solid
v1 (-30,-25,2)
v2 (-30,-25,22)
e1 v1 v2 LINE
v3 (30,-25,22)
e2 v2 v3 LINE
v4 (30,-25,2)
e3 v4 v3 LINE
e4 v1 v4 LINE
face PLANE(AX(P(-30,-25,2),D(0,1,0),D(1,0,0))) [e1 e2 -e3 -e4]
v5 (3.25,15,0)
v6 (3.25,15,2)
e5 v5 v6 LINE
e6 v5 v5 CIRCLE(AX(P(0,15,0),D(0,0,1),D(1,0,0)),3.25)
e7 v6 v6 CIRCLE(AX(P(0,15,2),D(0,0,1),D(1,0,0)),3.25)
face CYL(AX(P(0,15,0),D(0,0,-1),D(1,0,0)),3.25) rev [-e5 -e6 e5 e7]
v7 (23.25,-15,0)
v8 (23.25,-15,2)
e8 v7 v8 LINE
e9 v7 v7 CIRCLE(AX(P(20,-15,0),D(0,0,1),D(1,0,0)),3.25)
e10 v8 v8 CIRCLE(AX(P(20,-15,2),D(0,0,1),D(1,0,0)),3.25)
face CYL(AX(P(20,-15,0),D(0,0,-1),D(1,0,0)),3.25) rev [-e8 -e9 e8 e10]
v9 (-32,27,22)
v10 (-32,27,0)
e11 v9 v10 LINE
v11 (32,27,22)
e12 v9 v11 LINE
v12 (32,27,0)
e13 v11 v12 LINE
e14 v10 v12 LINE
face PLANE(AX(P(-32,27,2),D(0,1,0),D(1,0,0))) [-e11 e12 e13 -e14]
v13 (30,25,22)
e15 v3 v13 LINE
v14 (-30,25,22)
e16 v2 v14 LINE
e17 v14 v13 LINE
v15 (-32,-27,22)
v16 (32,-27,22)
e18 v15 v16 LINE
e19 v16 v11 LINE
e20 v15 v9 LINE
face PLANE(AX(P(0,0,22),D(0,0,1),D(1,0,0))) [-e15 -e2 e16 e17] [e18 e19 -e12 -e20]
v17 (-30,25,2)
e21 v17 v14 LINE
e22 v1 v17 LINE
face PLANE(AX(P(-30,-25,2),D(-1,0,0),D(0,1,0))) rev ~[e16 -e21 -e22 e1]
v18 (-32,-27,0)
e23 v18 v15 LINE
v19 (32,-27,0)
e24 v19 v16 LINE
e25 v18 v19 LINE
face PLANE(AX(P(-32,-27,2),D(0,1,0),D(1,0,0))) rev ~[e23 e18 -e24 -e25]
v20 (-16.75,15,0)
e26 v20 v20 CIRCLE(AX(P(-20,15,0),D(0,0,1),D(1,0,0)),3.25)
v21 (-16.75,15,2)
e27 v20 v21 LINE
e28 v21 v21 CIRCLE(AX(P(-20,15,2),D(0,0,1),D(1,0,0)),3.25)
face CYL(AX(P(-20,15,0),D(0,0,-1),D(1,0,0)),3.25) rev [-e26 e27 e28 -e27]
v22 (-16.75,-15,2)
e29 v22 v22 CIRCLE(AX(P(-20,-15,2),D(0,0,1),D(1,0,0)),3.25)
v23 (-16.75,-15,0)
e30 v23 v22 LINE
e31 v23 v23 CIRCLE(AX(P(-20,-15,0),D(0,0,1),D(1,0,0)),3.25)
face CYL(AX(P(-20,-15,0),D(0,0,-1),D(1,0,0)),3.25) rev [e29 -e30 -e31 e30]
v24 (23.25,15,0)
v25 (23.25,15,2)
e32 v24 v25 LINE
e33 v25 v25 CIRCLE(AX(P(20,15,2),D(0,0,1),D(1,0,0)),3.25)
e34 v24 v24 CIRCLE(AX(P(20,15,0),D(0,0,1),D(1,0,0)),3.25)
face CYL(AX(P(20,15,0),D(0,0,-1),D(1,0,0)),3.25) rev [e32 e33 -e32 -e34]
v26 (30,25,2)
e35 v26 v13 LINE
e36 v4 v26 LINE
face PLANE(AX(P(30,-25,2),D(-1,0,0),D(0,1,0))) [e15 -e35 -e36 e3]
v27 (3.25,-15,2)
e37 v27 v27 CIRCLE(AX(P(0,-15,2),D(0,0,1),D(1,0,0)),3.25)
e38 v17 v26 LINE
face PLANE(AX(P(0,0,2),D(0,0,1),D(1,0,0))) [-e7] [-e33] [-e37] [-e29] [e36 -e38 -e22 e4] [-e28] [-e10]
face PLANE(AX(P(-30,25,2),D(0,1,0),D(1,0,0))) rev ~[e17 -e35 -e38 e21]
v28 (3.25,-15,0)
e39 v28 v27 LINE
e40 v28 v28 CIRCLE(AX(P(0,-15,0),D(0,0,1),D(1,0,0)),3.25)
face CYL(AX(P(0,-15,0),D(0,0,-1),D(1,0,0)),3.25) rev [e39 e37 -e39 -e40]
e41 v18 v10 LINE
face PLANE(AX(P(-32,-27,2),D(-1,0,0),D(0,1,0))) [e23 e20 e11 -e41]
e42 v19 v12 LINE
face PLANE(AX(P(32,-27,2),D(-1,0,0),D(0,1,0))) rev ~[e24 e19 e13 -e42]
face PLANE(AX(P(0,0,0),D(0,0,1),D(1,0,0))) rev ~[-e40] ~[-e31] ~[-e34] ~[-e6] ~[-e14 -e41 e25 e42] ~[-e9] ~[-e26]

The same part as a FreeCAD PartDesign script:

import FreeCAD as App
import Part
import Sketcher


def add_polygon(sketch, points):
    """Adds a closed chain of lines whose ends are joined by coincident constraints."""
    first, n = sketch.GeometryCount, len(points)
    for a, b in zip(points, points[1:] + points[:1]):
        sketch.addGeometry(Part.LineSegment(App.Vector(*a, 0), App.Vector(*b, 0)), False)
    for i in range(n):
        sketch.addConstraint(Sketcher.Constraint("Coincident", first + i, 2, first + (i + 1) % n, 1))

doc = App.newDocument("Part")
body = doc.addObject("PartDesign::Body", "Body")

# Sketch on XY plane
sketch1 = body.newObject("Sketcher::SketchObject", "Sketch")
sketch1.AttachmentSupport = (doc.getObject("XY_Plane"), [""])
sketch1.MapMode = "FlatFace"
add_polygon(sketch1, [(-32, 27), (-32, -27), (32, -27), (32, 27)])  # lines 0-3
sketch1.addGeometry(Part.Circle(App.Vector(-20, -15, 0), App.Vector(0, 0, 1), 3.2), False)  # 4
sketch1.addGeometry(Part.Circle(App.Vector(0, -15, 0), App.Vector(0, 0, 1), 3.2), False)  # 5
sketch1.addGeometry(Part.Circle(App.Vector(20, -15, 0), App.Vector(0, 0, 1), 3.2), False)  # 6
sketch1.addGeometry(Part.Circle(App.Vector(-20, 15, 0), App.Vector(0, 0, 1), 3.2), False)  # 7
sketch1.addGeometry(Part.Circle(App.Vector(0, 15, 0), App.Vector(0, 0, 1), 3.2), False)  # 8
sketch1.addGeometry(Part.Circle(App.Vector(20, 15, 0), App.Vector(0, 0, 1), 3.2), False)  # 9
sketch1.addConstraint(Sketcher.Constraint("Vertical", 0))
sketch1.addConstraint(Sketcher.Constraint("Horizontal", 1))
sketch1.addConstraint(Sketcher.Constraint("Vertical", 2))
sketch1.addConstraint(Sketcher.Constraint("Horizontal", 3))
sketch1.addConstraint(Sketcher.Constraint("Equal", 4, 5))
sketch1.addConstraint(Sketcher.Constraint("Equal", 5, 6))
sketch1.addConstraint(Sketcher.Constraint("Equal", 6, 7))
sketch1.addConstraint(Sketcher.Constraint("Equal", 7, 8))
sketch1.addConstraint(Sketcher.Constraint("Equal", 8, 9))
sketch1.addConstraint(Sketcher.Constraint("Symmetric", 6, 3, 7, 3, -1, 1))
sketch1.addConstraint(Sketcher.Constraint("Symmetric", 5, 3, 8, 3, -1, 1))
sketch1.addConstraint(Sketcher.Constraint("Symmetric", 4, 3, 9, 3, -1, 1))
sketch1.addConstraint(Sketcher.Constraint("Symmetric", 0, 2, 2, 2, -1, 1))
sketch1.addConstraint(Sketcher.Constraint("Symmetric", 4, 3, 6, 3, -2))
sketch1.addConstraint(Sketcher.Constraint("PointOnObject", 5, 3, -2))
sketch1.addConstraint(Sketcher.Constraint("Horizontal", 4, 3, 5, 3))
sketch1.addConstraint(Sketcher.Constraint("Diameter", 4, 6.5))
sketch1.addConstraint(Sketcher.Constraint("DistanceX", 1, 1, 1, 2, 64.0))
sketch1.addConstraint(Sketcher.Constraint("DistanceY", 0, 2, 0, 1, 54.0))
sketch1.addConstraint(Sketcher.Constraint("DistanceX", 4, 3, -1, 1, 20.0))
sketch1.addConstraint(Sketcher.Constraint("DistanceY", 4, 3, -1, 1, 15.0))
pad1 = body.newObject("PartDesign::Pad", "Pad")
pad1.Profile = sketch1
pad1.Length = 2

# Sketch on XY plane
sketch2 = body.newObject("Sketcher::SketchObject", "Sketch001")
sketch2.AttachmentSupport = (doc.getObject("XY_Plane"), [""])
sketch2.MapMode = "FlatFace"
sketch2.AttachmentOffset = App.Placement(App.Vector(0, 0, 2), App.Rotation())
add_polygon(sketch2, [(-32, 27), (-32, -27), (32, -27), (32, 27)])  # lines 0-3
add_polygon(sketch2, [(30, -25), (-30, -25), (-30, 25), (30, 25)])  # lines 4-7
sketch2.addConstraint(Sketcher.Constraint("Vertical", 0))
sketch2.addConstraint(Sketcher.Constraint("Horizontal", 1))
sketch2.addConstraint(Sketcher.Constraint("Vertical", 2))
sketch2.addConstraint(Sketcher.Constraint("Horizontal", 3))
sketch2.addConstraint(Sketcher.Constraint("Horizontal", 4))
sketch2.addConstraint(Sketcher.Constraint("Vertical", 5))
sketch2.addConstraint(Sketcher.Constraint("Horizontal", 6))
sketch2.addConstraint(Sketcher.Constraint("Vertical", 7))
sketch2.addConstraint(Sketcher.Constraint("Symmetric", 0, 2, 2, 2, -1, 1))
sketch2.addConstraint(Sketcher.Constraint("Symmetric", 4, 2, 6, 2, -1, 1))
sketch2.addConstraint(Sketcher.Constraint("DistanceX", 1, 1, 1, 2, 64.0))
sketch2.addConstraint(Sketcher.Constraint("DistanceX", 4, 2, 4, 1, 60.0))
sketch2.addConstraint(Sketcher.Constraint("DistanceY", 0, 2, 0, 1, 54.0))
sketch2.addConstraint(Sketcher.Constraint("DistanceY", 5, 1, 5, 2, 50.0))
pad2 = body.newObject("PartDesign::Pad", "Pad001")
pad2.Profile = sketch2
pad2.Length = 20

doc.recompute()
